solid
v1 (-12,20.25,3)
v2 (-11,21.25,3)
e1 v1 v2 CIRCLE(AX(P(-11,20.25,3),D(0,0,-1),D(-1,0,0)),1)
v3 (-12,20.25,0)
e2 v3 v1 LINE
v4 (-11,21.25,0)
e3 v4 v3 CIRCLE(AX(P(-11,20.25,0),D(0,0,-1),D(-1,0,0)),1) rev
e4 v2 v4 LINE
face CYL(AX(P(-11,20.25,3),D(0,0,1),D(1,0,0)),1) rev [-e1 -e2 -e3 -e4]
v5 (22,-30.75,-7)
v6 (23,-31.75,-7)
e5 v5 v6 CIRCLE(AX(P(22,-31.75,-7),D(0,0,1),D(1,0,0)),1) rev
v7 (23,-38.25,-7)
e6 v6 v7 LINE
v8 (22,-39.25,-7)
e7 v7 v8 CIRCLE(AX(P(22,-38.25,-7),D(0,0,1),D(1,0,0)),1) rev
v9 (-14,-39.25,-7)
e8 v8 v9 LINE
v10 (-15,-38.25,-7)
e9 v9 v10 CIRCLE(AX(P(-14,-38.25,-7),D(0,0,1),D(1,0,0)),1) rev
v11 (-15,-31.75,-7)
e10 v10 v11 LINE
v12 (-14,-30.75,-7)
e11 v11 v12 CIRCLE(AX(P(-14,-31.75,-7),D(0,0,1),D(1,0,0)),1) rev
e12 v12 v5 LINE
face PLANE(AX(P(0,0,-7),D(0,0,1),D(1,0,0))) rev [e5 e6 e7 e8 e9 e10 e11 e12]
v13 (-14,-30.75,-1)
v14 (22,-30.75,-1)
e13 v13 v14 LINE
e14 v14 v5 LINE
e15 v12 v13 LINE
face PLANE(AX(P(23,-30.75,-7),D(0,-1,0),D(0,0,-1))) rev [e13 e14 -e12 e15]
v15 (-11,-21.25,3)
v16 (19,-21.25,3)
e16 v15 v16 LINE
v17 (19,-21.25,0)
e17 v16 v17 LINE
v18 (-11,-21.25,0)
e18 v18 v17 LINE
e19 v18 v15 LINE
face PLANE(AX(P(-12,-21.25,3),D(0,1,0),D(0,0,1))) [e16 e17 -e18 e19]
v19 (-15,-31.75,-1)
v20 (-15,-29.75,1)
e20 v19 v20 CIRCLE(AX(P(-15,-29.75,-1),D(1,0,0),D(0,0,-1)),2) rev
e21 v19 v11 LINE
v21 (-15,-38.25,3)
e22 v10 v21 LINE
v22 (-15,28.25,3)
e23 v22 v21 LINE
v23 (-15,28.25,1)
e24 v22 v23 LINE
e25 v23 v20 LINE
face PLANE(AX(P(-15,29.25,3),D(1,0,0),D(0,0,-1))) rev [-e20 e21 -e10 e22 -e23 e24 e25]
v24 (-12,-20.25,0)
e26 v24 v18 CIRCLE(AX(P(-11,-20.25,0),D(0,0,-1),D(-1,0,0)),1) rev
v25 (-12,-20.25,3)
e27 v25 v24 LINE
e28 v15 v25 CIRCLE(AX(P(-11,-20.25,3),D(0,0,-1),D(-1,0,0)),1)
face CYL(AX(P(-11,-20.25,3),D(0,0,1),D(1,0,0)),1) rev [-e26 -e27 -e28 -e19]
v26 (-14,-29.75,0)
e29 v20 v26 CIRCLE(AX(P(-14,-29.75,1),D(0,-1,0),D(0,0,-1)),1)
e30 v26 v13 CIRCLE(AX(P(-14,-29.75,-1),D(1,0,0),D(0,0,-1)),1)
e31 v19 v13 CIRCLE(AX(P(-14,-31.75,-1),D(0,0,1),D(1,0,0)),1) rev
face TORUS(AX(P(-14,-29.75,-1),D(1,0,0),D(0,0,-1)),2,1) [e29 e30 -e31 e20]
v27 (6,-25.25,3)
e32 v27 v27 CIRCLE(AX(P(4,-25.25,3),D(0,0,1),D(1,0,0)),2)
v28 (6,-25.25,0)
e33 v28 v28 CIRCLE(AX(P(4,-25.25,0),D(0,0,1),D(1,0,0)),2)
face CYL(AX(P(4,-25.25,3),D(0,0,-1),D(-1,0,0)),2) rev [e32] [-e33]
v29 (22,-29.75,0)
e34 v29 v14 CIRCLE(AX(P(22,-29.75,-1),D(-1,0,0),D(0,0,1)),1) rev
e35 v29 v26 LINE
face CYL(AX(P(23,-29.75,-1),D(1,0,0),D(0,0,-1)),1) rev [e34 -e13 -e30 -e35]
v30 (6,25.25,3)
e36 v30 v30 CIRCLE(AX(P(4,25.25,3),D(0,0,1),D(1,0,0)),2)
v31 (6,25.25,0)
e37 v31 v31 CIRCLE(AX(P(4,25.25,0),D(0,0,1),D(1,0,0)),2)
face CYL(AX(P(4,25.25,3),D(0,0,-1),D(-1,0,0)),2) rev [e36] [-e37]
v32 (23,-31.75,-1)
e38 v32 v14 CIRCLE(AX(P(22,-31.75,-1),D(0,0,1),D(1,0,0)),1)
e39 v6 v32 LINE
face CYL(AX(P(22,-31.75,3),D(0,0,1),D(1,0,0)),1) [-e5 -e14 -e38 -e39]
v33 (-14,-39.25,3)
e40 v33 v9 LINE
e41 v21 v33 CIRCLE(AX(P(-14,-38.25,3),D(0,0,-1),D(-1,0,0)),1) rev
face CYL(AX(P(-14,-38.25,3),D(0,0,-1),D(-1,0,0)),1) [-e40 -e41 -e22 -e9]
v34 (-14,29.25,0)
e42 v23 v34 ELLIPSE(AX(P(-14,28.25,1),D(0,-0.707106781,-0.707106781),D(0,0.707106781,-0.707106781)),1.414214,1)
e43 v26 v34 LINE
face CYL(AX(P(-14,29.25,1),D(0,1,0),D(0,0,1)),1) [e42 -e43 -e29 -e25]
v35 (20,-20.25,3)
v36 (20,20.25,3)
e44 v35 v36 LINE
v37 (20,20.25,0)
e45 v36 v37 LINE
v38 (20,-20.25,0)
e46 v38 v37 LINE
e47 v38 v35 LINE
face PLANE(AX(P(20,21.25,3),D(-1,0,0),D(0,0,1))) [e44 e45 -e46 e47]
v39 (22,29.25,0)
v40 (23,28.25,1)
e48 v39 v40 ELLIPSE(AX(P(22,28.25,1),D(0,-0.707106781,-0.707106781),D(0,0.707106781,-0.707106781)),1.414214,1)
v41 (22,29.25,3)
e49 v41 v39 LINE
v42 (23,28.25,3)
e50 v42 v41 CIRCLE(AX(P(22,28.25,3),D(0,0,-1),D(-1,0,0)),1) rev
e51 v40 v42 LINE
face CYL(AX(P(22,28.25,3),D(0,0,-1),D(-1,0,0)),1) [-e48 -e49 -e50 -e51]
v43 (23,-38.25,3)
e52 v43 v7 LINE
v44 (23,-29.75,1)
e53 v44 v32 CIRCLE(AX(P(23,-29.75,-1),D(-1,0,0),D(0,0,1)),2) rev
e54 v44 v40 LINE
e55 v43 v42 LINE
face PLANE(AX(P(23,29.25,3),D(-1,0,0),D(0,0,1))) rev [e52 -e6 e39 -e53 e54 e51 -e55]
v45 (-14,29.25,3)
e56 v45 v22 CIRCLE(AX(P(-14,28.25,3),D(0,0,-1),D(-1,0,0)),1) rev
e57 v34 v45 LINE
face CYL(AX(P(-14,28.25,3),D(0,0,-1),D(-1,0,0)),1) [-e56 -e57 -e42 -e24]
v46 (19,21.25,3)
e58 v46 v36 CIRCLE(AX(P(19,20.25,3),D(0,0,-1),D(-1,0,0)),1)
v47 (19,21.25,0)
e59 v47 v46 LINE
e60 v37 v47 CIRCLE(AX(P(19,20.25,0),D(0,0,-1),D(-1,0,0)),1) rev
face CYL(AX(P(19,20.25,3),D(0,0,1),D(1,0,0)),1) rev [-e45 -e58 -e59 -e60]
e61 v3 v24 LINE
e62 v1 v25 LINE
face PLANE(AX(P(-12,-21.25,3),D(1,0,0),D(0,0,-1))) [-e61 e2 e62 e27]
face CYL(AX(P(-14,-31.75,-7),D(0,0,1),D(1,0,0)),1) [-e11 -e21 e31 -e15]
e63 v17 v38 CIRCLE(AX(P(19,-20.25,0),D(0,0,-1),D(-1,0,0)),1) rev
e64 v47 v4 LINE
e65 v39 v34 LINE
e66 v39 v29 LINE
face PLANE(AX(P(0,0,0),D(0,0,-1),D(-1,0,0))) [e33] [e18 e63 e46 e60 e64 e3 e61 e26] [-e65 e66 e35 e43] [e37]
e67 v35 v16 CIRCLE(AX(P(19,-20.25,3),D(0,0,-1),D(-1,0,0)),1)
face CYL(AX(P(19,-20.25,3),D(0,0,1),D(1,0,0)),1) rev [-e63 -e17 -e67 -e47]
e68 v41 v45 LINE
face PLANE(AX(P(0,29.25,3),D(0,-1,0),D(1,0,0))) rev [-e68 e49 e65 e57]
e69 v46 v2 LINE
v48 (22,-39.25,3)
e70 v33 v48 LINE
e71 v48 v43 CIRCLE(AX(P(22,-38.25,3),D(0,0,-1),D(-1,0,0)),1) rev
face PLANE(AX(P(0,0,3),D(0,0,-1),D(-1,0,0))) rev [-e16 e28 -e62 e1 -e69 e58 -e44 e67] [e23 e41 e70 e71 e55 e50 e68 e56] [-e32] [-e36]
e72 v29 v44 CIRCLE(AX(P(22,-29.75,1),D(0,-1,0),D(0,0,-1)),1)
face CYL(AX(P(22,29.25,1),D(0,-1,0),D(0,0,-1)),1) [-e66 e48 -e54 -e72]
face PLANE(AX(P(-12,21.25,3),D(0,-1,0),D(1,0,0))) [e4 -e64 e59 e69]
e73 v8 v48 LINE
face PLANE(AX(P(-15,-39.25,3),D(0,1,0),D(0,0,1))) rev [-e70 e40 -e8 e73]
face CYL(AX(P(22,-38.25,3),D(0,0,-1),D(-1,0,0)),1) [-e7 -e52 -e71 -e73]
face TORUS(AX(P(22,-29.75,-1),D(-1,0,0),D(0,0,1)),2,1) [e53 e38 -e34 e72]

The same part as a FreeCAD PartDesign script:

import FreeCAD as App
import Part
import Sketcher

V = App.Vector
Q = App.Units.Quantity


def edges_at(feature, points):
    """Names of the edges that pass closest to the given points."""
    edges = feature.Shape.Edges
    near = lambda p: min(range(len(edges)), key=lambda i: edges[i].distToShape(Part.Vertex(*p))[0])
    return sorted({f"Edge{near(p) + 1}" for p in points})


def add_polygon(sketch, points):
    """Adds a closed chain of lines whose ends are joined by coincident constraints."""
    first, n = sketch.GeometryCount, len(points)
    for a, b in zip(points, points[1:] + points[:1]):
        sketch.addGeometry(Part.LineSegment(App.Vector(*a, 0), App.Vector(*b, 0)), False)
    for i in range(n):
        sketch.addConstraint(Sketcher.Constraint("Coincident", first + i, 2, first + (i + 1) % n, 1))

doc = App.newDocument("Part")
body = doc.addObject("PartDesign::Body", "Body")

# Sketch on XY plane
sketch1 = body.newObject("Sketcher::SketchObject", "Sketch")
sketch1.AttachmentSupport = (doc.getObject("XY_Plane"), [""])
sketch1.MapMode = "FlatFace"
add_polygon(sketch1, [(23, 29.25), (-15, 29.25), (-15, -39.25), (23, -39.25)])  # lines 0-3
sketch1.addGeometry(Part.Circle(V(4, -25.25, 0), V(0, 0, 1), 2), False)  # 4
add_polygon(sketch1, [(-12, -21.25), (-12, 21.25), (20, 21.25), (20, -21.25)])  # lines 5-8
sketch1.addGeometry(Part.Circle(V(4, 25.25, 0), V(0, 0, 1), 2), False)  # 9
sketch1.addConstraint([
    Sketcher.Constraint("Horizontal", 0),
    Sketcher.Constraint("Vertical", 1),
    Sketcher.Constraint("Horizontal", 2),
    Sketcher.Constraint("Vertical", 3),
    Sketcher.Constraint("Vertical", 5),
    Sketcher.Constraint("Horizontal", 6),
    Sketcher.Constraint("Vertical", 7),
    Sketcher.Constraint("Horizontal", 8),
    Sketcher.Constraint("Equal", 4, 9),
    Sketcher.Constraint("Symmetric", 4, 3, 9, 3, -1),
    Sketcher.Constraint("Diameter", 4, Q("4 mm")),
    Sketcher.Constraint("DistanceX", 0, 2, 0, 1, Q("38 mm")),
    Sketcher.Constraint("DistanceX", 6, 1, 6, 2, Q("32 mm")),
    Sketcher.Constraint("DistanceY", 1, 2, 1, 1, Q("68.5 mm")),
    Sketcher.Constraint("DistanceY", 5, 1, 5, 2, Q("42.5 mm")),
    Sketcher.Constraint("DistanceX", -1, 1, 4, 3, Q("4 mm")),
    Sketcher.Constraint("DistanceX", 0, 2, -1, 1, Q("15 mm")),
    Sketcher.Constraint("DistanceX", 5, 2, -1, 1, Q("12 mm")),
    Sketcher.Constraint("DistanceY", 9, 3, 0, 2, Q("4 mm")),
    Sketcher.Constraint("DistanceY", 1, 2, 4, 3, Q("14 mm")),
    Sketcher.Constraint("DistanceY", 5, 2, 0, 2, Q("8 mm")),
])
pad1 = body.newObject("PartDesign::Pad", "Pad")
pad1.Profile = sketch1
pad1.Length = 3

# Sketch on XY plane
sketch2 = body.newObject("Sketcher::SketchObject", "Sketch001")
sketch2.AttachmentSupport = (doc.getObject("XY_Plane"), [""])
sketch2.MapMode = "FlatFace"
add_polygon(sketch2, [(23, -30.75), (23, -39.25), (-15, -39.25), (-15, -30.75)])  # lines 0-3
sketch2.addConstraint([
    Sketcher.Constraint("Vertical", 0),
    Sketcher.Constraint("Horizontal", 1),
    Sketcher.Constraint("Vertical", 2),
    Sketcher.Constraint("Horizontal", 3),
    Sketcher.Constraint("DistanceX", 1, 2, 1, 1, Q("38 mm")),
    Sketcher.Constraint("DistanceY", 0, 2, 0, 1, Q("8.5 mm")),
    Sketcher.Constraint("DistanceX", -1, 1, 0, 2, Q("23 mm")),
    Sketcher.Constraint("DistanceY", 0, 2, -1, 1, Q("39.25 mm")),
])
pad2 = body.newObject("PartDesign::Pad", "Pad001")
pad2.Profile = sketch2
pad2.Length = 7
pad2.Reversed = True
doc.recompute()

fillet = body.newObject("PartDesign::Fillet", "Fillet")
fillet.Base = (pad2, edges_at(pad2, [
    (-12, -21.25, 1.5),
    (20, -21.25, 1.5),
    (20, 21.25, 1.5),
    (-12, 21.25, 1.5),
    (23, -0.75, 0),
    (23, -30.75, -3.5),
    (4, -30.75, 0),
    (-15, -30.75, -3.5),
    (-15, -0.75, 0),
    (-15, -39.25, -2),
    (-15, 29.25, 1.5),
    (23, 29.25, 1.5),
    (23, -39.25, -2),
]))
fillet.Radius = 1

doc.recompute()
